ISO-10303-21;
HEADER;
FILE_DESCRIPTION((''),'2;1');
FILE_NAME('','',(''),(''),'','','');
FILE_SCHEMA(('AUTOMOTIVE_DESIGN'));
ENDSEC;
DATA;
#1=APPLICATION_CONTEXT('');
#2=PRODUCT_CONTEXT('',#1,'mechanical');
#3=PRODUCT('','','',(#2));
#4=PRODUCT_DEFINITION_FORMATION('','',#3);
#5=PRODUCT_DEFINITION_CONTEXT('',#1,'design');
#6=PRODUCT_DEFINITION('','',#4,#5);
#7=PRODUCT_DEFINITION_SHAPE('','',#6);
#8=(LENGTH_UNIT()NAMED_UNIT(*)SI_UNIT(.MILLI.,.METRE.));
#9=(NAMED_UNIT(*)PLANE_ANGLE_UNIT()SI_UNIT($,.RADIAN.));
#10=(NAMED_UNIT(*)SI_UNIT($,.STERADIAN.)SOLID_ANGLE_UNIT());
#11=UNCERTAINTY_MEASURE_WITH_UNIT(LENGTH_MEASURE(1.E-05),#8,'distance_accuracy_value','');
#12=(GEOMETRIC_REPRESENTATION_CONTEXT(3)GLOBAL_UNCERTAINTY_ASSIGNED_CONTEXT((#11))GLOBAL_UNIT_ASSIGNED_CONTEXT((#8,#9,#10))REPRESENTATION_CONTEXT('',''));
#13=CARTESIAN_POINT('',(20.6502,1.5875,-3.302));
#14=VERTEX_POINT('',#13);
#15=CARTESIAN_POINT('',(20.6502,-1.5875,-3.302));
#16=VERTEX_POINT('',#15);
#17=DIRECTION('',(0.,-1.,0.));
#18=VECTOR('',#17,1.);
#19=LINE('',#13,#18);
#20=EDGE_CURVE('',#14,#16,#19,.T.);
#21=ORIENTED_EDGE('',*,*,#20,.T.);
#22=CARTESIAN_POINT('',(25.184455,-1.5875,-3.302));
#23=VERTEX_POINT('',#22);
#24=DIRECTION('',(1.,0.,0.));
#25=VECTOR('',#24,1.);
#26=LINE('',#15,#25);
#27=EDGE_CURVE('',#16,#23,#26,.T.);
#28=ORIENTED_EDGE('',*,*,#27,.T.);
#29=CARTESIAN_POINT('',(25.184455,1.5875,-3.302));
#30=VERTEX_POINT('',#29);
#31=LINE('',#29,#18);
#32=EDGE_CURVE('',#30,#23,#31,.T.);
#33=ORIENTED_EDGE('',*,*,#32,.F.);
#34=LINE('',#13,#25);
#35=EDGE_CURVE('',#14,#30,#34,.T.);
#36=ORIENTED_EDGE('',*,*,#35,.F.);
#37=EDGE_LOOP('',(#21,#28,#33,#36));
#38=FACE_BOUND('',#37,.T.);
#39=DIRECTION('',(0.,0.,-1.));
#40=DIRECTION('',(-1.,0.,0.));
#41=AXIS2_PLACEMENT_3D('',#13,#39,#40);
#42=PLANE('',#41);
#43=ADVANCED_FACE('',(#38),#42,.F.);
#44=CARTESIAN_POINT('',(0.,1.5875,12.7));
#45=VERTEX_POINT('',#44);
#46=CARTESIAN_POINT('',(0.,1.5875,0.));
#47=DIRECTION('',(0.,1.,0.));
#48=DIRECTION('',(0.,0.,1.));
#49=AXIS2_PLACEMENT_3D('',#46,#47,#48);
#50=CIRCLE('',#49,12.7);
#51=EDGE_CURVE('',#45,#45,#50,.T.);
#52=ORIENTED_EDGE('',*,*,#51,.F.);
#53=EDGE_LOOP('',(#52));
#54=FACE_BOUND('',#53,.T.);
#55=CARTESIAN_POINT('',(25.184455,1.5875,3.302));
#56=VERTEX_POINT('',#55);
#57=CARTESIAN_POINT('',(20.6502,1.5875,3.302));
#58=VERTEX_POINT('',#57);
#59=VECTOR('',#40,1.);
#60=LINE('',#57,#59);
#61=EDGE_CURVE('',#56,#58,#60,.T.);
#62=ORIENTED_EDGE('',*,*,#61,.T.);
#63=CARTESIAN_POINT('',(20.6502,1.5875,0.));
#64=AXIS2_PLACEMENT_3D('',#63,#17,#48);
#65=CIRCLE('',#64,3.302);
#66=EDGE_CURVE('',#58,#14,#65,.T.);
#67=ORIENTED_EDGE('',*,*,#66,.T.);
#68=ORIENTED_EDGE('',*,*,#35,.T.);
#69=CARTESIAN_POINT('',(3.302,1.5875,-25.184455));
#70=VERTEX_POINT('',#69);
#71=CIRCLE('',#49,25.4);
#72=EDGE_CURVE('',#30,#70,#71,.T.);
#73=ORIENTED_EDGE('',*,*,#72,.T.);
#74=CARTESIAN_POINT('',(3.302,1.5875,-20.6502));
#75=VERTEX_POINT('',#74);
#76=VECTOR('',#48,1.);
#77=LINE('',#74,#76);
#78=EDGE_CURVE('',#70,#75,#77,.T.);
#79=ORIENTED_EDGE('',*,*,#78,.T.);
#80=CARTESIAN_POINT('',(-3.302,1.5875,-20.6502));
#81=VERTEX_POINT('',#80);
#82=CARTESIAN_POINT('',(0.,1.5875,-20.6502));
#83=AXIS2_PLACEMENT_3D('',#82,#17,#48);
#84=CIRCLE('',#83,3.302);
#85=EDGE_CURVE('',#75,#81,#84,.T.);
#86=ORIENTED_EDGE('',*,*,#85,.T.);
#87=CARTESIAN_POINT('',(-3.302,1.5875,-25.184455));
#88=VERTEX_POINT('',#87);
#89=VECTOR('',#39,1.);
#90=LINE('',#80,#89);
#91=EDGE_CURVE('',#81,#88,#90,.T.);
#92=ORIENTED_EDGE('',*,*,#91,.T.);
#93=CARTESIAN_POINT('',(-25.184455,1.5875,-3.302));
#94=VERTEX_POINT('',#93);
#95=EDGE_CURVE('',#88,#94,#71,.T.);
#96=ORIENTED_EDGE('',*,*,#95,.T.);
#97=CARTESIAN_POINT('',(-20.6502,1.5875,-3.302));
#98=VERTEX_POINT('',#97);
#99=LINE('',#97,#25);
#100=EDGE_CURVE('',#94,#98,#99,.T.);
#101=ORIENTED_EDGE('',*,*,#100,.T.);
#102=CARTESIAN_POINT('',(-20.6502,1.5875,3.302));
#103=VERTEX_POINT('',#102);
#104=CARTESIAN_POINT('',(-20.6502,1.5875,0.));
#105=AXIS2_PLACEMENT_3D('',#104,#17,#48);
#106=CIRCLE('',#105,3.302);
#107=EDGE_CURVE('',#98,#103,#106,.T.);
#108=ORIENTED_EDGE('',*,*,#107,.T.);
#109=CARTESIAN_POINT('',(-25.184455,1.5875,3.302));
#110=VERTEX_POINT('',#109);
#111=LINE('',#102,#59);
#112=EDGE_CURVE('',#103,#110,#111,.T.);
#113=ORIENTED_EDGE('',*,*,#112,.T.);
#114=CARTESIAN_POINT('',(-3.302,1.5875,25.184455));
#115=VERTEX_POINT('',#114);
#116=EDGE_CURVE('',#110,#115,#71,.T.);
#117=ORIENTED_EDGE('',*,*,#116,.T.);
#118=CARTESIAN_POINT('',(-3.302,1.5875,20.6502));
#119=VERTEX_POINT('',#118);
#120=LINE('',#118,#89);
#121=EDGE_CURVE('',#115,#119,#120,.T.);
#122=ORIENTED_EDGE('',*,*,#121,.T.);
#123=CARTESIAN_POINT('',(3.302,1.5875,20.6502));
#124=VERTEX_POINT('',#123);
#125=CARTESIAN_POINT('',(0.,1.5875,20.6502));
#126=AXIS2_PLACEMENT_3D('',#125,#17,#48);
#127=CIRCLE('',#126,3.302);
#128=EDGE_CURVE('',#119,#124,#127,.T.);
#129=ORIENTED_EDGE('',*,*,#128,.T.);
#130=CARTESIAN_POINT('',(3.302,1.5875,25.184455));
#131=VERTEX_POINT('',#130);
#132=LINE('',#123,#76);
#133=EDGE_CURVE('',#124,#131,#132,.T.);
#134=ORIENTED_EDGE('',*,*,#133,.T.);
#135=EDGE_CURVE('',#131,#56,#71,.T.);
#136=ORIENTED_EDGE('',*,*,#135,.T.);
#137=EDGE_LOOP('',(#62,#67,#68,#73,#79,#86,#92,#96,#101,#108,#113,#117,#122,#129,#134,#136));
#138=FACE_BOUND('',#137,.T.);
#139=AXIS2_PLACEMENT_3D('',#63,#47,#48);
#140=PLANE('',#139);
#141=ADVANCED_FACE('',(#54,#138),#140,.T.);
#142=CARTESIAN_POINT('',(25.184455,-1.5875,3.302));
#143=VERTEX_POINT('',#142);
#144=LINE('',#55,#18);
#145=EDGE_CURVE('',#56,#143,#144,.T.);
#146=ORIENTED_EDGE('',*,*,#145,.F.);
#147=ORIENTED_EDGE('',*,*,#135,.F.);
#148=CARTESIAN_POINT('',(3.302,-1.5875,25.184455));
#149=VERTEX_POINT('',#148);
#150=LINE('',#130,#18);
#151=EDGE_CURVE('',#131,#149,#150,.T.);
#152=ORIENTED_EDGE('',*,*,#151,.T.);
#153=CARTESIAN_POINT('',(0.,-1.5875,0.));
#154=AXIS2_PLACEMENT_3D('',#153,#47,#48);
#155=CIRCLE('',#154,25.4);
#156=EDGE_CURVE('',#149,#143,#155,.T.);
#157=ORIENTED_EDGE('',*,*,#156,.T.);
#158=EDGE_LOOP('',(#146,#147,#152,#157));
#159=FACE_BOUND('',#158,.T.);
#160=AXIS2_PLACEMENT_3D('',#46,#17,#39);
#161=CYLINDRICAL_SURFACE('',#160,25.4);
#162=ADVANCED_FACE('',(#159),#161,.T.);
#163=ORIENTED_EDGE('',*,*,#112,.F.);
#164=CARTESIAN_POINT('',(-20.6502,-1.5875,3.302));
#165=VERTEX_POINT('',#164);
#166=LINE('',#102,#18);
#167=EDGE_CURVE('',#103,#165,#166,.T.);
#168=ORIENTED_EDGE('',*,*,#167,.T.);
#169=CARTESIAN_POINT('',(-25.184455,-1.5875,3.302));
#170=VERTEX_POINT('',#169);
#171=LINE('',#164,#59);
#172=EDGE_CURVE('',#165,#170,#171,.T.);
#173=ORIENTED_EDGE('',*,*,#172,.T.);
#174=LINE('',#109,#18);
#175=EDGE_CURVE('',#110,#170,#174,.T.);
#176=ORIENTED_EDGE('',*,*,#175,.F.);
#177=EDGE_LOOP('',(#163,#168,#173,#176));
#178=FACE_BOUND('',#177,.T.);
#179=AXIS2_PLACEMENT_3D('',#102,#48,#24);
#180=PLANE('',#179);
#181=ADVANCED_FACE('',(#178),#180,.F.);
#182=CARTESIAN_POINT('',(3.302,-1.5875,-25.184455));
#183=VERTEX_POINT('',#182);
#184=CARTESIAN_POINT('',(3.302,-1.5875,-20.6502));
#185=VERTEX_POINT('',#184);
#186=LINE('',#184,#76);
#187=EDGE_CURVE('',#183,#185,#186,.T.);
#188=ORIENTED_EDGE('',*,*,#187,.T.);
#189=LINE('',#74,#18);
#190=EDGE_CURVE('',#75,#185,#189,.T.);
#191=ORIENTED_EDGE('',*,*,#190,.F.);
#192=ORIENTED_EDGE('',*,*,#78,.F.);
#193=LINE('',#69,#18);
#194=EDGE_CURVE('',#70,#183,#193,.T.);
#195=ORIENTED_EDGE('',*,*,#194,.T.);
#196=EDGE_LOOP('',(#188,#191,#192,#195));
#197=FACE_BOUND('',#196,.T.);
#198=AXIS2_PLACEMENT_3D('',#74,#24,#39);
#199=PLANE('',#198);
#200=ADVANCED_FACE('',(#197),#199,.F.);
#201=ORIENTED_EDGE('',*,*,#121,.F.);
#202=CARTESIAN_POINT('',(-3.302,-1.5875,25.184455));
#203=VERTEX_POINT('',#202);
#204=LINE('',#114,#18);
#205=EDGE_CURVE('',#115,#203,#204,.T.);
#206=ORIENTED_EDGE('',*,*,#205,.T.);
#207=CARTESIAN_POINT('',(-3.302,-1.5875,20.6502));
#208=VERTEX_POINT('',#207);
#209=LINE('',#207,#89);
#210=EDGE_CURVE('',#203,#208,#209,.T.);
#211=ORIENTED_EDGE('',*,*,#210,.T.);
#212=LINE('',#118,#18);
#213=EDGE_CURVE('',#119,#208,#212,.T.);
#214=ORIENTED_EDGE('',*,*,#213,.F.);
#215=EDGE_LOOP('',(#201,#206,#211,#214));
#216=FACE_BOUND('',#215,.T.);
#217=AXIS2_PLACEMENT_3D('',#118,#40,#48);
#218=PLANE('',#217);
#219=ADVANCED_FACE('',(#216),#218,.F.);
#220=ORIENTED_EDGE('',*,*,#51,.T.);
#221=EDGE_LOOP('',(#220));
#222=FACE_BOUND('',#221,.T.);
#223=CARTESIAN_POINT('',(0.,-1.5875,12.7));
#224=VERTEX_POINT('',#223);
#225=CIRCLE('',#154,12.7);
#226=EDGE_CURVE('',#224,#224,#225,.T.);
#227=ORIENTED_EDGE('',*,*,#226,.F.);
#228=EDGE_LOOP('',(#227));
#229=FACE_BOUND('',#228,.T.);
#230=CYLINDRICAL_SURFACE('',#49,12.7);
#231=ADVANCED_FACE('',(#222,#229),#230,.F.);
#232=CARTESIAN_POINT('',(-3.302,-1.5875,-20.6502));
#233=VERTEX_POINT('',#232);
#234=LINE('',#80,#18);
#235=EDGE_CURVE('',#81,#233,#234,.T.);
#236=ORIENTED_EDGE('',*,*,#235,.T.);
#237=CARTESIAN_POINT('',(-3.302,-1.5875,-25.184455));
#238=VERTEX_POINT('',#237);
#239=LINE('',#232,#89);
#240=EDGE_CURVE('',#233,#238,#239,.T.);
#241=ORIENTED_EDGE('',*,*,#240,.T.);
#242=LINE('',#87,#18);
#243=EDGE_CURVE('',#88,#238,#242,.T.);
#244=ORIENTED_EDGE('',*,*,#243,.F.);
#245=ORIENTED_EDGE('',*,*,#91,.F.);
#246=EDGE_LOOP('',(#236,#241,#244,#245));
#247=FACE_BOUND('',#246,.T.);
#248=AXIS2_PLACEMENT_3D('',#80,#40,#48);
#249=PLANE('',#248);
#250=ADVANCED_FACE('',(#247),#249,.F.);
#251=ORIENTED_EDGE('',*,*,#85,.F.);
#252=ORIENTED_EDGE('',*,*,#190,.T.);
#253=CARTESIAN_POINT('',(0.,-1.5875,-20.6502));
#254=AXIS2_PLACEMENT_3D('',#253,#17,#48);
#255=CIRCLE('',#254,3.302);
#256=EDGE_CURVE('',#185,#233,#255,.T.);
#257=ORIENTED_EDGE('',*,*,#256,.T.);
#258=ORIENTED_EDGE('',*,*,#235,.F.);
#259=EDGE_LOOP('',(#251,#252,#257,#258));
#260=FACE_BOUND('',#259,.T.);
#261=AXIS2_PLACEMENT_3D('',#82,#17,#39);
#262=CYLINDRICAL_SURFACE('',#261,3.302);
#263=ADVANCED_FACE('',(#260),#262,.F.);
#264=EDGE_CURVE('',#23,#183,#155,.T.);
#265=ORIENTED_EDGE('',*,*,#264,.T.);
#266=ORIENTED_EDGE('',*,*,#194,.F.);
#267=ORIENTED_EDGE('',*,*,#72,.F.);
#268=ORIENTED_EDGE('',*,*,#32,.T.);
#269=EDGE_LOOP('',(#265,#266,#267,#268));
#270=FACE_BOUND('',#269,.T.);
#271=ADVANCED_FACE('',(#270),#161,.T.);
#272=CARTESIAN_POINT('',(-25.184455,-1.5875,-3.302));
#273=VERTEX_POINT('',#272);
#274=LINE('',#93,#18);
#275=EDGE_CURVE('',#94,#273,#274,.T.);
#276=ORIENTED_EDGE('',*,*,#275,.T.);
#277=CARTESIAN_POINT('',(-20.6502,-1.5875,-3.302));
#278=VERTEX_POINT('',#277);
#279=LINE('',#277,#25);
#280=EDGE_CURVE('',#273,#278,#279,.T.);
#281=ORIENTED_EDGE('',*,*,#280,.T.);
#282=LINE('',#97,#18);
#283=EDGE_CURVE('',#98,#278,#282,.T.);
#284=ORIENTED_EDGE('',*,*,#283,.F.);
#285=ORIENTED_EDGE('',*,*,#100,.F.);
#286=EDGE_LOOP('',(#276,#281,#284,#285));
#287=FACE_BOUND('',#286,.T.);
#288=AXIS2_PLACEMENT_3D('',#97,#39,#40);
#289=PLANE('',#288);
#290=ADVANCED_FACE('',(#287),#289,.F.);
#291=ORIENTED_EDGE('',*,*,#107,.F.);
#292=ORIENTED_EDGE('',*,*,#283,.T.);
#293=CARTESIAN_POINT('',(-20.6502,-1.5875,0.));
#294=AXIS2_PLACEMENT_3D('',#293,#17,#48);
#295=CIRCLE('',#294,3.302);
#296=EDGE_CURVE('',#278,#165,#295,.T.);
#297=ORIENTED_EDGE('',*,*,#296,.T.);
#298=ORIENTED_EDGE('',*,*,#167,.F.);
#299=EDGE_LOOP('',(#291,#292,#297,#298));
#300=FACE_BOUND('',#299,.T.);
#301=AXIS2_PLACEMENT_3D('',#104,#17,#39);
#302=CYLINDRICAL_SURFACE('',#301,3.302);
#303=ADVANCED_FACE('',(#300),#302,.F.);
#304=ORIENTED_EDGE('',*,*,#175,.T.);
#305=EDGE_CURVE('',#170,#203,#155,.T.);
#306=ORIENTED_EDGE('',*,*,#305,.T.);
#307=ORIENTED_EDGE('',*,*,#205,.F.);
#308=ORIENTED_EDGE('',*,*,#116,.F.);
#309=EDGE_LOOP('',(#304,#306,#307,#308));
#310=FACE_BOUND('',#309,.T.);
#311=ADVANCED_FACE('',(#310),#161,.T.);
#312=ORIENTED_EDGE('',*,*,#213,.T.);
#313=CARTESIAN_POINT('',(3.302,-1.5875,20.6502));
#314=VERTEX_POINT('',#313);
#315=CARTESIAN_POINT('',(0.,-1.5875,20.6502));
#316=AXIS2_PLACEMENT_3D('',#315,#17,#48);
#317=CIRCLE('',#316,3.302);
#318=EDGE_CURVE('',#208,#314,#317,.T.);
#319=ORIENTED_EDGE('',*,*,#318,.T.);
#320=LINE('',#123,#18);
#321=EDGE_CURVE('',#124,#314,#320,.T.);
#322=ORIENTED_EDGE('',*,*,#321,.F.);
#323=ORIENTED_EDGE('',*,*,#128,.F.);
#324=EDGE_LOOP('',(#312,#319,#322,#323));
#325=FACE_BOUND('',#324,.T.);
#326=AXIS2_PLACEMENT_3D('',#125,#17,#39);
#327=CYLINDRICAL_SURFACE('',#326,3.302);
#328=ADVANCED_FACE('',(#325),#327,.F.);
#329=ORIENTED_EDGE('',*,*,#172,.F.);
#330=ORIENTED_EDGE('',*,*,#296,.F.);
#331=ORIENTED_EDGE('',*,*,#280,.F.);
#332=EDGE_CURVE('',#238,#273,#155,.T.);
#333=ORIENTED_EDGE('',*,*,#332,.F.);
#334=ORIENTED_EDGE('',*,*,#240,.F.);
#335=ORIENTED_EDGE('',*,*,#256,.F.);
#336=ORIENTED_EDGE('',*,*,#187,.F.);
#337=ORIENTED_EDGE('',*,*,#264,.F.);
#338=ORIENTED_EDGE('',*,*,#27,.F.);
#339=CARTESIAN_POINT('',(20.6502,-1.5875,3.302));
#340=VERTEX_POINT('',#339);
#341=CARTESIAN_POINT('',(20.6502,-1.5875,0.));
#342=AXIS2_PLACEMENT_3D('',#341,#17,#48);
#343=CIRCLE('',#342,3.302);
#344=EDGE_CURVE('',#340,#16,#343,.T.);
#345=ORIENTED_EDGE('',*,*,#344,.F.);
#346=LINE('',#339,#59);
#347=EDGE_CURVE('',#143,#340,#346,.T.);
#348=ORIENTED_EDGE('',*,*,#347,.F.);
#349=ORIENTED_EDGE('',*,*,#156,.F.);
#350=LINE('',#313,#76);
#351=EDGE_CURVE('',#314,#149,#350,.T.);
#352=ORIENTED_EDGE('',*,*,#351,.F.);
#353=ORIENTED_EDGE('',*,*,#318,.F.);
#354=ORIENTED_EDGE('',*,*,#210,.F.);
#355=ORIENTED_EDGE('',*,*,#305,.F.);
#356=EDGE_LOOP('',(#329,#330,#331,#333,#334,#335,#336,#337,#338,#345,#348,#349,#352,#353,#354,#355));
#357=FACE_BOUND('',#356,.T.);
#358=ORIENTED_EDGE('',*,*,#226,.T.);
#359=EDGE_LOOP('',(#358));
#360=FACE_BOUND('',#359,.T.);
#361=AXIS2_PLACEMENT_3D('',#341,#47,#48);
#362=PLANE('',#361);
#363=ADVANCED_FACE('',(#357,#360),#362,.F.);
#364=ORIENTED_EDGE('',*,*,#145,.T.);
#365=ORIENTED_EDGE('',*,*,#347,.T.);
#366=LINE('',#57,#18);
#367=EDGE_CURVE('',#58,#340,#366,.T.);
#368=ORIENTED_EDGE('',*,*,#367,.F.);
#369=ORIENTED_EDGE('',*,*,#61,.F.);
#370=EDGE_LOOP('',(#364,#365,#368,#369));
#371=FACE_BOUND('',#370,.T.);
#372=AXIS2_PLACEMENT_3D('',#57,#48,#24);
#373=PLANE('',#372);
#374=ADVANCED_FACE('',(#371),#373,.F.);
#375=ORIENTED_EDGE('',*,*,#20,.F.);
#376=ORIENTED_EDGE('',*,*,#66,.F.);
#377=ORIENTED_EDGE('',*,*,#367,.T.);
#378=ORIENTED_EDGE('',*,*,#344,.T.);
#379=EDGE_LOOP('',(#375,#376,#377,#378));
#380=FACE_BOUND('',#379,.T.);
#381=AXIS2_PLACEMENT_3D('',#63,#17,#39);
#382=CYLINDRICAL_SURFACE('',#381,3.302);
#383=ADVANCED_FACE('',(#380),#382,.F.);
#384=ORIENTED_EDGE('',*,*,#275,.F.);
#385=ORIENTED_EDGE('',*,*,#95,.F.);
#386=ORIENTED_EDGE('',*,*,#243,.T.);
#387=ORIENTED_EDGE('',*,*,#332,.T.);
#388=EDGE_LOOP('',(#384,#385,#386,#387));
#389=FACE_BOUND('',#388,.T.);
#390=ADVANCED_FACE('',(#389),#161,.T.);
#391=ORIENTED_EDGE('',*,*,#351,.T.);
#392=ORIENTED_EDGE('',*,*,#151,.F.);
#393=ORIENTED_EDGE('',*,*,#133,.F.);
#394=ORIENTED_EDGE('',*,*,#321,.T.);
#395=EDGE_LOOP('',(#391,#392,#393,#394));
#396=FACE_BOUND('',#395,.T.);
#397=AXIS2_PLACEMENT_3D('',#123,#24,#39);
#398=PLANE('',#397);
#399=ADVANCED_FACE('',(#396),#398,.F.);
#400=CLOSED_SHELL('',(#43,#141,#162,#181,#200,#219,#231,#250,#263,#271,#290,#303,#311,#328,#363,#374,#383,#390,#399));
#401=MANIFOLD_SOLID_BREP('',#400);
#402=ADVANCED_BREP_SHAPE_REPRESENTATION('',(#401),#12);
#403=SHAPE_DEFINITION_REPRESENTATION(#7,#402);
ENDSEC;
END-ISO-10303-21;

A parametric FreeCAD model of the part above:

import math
import FreeCAD as App
import Part
import Sketcher
Q = App.Units.Quantity

doc = App.newDocument("Part")
body = doc.addObject("PartDesign::Body", "Body")

sketch1 = doc.addObject("Sketcher::SketchObject", "Sketch")
body.addObject(sketch1)
sketch1.AttachmentSupport = (doc.XZ_Plane, [""])
sketch1.MapMode = "FlatFace"
sketch1.addGeometry([
    Part.LineSegment(App.Vector(20.7, -3.3, 0), App.Vector(25.2, -3.3, 0)),
    Part.ArcOfCircle(Part.Circle(App.Vector(0, 0, 0), App.Vector(0, 0, 1), 25.4), math.radians(-83), math.radians(-7)),
    Part.LineSegment(App.Vector(3.3, -25.2, 0), App.Vector(3.3, -20.7, 0)),
    Part.ArcOfCircle(Part.Circle(App.Vector(0, -20.7, 0), App.Vector(0, 0, 1), 3.3), math.radians(0), math.radians(180)),
    Part.LineSegment(App.Vector(-3.3, -20.7, 0), App.Vector(-3.3, -25.2, 0)),
    Part.ArcOfCircle(Part.Circle(App.Vector(0, 0, 0), App.Vector(0, 0, 1), 25.4), math.radians(-173), math.radians(-97)),
    Part.LineSegment(App.Vector(-25.2, -3.3, 0), App.Vector(-20.7, -3.3, 0)),
    Part.ArcOfCircle(Part.Circle(App.Vector(-20.7, 0, 0), App.Vector(0, 0, 1), 3.3), math.radians(-90), math.radians(90)),
    Part.LineSegment(App.Vector(-20.7, 3.3, 0), App.Vector(-25.2, 3.3, 0)),
    Part.ArcOfCircle(Part.Circle(App.Vector(0, 0, 0), App.Vector(0, 0, 1), 25.4), math.radians(97), math.radians(173)),
    Part.LineSegment(App.Vector(-3.3, 25.2, 0), App.Vector(-3.3, 20.7, 0)),
    Part.ArcOfCircle(Part.Circle(App.Vector(0, 20.7, 0), App.Vector(0, 0, 1), 3.3), math.radians(180), math.radians(360)),
    Part.LineSegment(App.Vector(3.3, 20.7, 0), App.Vector(3.3, 25.2, 0)),
    Part.ArcOfCircle(Part.Circle(App.Vector(0, 0, 0), App.Vector(0, 0, 1), 25.4), math.radians(7), math.radians(83)),
    Part.LineSegment(App.Vector(25.2, 3.3, 0), App.Vector(20.7, 3.3, 0)),
    Part.ArcOfCircle(Part.Circle(App.Vector(20.7, 0, 0), App.Vector(0, 0, 1), 3.3), math.radians(90), math.radians(270)),
], False)
sketch1.addConstraint([
    Sketcher.Constraint("Coincident", 0, 2, 1, 2),
    Sketcher.Constraint("Coincident", 1, 1, 2, 1),
    Sketcher.Constraint("Tangent", 2, 2, 3, 1),
    Sketcher.Constraint("Tangent", 3, 2, 4, 1),
    Sketcher.Constraint("Coincident", 4, 2, 5, 2),
    Sketcher.Constraint("Coincident", 5, 1, 6, 1),
    Sketcher.Constraint("Tangent", 6, 2, 7, 1),
    Sketcher.Constraint("Tangent", 7, 2, 8, 1),
    Sketcher.Constraint("Coincident", 8, 2, 9, 2),
    Sketcher.Constraint("Coincident", 9, 1, 10, 1),
    Sketcher.Constraint("Tangent", 10, 2, 11, 1),
    Sketcher.Constraint("Tangent", 11, 2, 12, 1),
    Sketcher.Constraint("Coincident", 12, 2, 13, 2),
    Sketcher.Constraint("Coincident", 13, 1, 14, 1),
    Sketcher.Constraint("Tangent", 14, 2, 15, 1),
    Sketcher.Constraint("Tangent", 15, 2, 0, 1),
    Sketcher.Constraint("Horizontal", 0),
    Sketcher.Constraint("Vertical", 2),
    Sketcher.Constraint("Vertical", 4),
    Sketcher.Constraint("Horizontal", 6),
    Sketcher.Constraint("Horizontal", 8),
    Sketcher.Constraint("Vertical", 10),
    Sketcher.Constraint("Vertical", 12),
    Sketcher.Constraint("Horizontal", 14),
    Sketcher.Constraint("Coincident", 1, 3, -1, 1),
    Sketcher.Constraint("Coincident", 5, 3, -1, 1),
    Sketcher.Constraint("Coincident", 9, 3, -1, 1),
    Sketcher.Constraint("Coincident", 13, 3, -1, 1),
    Sketcher.Constraint("Equal", 1, 5),
    Sketcher.Constraint("Equal", 3, 7),
    Sketcher.Constraint("Equal", 5, 9),
    Sketcher.Constraint("Equal", 7, 11),
    Sketcher.Constraint("Equal", 9, 13),
    Sketcher.Constraint("Equal", 11, 15),
    Sketcher.Constraint("Symmetric", 3, 3, 11, 3, -1, 1),
    Sketcher.Constraint("Symmetric", 7, 3, 15, 3, -1, 1),
    Sketcher.Constraint("PointOnObject", 3, 3, -2),
    Sketcher.Constraint("PointOnObject", 7, 3, -1),
    Sketcher.Constraint("Equal", 14, 2),
    Sketcher.Constraint("Radius", 1, Q("1 in")),
    Sketcher.Constraint("Radius", 3, Q("0.13 in")),
    Sketcher.Constraint("DistanceY", 3, 3, -1, 1, Q("0.813 in")),
])
pad1 = doc.addObject("PartDesign::Pad", "Pad")
body.addObject(pad1)
pad1.Profile = sketch1
pad1.Length = Q("0.125 in")
pad1.Midplane = True

sketch2 = doc.addObject("Sketcher::SketchObject", "Sketch001")
body.addObject(sketch2)
sketch2.AttachmentSupport = (doc.XZ_Plane, [""])
sketch2.MapMode = "FlatFace"
sketch2.AttachmentOffset = App.Placement(App.Vector(0, 0, -0.0625 * 25.4), App.Rotation())
sketch2.addGeometry(Part.Circle(App.Vector(0, 0, 0), App.Vector(0, 0, 1), 13), False)
sketch2.addConstraint([
    Sketcher.Constraint("Coincident", 0, 3, -1, 1),
    Sketcher.Constraint("Diameter", 0, Q("1 in")),
])
doc.recompute()
hole = doc.addObject("PartDesign::Hole", "Hole")
body.addObject(hole)
hole.Profile = sketch2
hole.ThreadType = "None"
hole.Diameter = Q("1 in")
hole.DepthType = "ThroughAll"
hole.Reversed = True

doc.recompute()
